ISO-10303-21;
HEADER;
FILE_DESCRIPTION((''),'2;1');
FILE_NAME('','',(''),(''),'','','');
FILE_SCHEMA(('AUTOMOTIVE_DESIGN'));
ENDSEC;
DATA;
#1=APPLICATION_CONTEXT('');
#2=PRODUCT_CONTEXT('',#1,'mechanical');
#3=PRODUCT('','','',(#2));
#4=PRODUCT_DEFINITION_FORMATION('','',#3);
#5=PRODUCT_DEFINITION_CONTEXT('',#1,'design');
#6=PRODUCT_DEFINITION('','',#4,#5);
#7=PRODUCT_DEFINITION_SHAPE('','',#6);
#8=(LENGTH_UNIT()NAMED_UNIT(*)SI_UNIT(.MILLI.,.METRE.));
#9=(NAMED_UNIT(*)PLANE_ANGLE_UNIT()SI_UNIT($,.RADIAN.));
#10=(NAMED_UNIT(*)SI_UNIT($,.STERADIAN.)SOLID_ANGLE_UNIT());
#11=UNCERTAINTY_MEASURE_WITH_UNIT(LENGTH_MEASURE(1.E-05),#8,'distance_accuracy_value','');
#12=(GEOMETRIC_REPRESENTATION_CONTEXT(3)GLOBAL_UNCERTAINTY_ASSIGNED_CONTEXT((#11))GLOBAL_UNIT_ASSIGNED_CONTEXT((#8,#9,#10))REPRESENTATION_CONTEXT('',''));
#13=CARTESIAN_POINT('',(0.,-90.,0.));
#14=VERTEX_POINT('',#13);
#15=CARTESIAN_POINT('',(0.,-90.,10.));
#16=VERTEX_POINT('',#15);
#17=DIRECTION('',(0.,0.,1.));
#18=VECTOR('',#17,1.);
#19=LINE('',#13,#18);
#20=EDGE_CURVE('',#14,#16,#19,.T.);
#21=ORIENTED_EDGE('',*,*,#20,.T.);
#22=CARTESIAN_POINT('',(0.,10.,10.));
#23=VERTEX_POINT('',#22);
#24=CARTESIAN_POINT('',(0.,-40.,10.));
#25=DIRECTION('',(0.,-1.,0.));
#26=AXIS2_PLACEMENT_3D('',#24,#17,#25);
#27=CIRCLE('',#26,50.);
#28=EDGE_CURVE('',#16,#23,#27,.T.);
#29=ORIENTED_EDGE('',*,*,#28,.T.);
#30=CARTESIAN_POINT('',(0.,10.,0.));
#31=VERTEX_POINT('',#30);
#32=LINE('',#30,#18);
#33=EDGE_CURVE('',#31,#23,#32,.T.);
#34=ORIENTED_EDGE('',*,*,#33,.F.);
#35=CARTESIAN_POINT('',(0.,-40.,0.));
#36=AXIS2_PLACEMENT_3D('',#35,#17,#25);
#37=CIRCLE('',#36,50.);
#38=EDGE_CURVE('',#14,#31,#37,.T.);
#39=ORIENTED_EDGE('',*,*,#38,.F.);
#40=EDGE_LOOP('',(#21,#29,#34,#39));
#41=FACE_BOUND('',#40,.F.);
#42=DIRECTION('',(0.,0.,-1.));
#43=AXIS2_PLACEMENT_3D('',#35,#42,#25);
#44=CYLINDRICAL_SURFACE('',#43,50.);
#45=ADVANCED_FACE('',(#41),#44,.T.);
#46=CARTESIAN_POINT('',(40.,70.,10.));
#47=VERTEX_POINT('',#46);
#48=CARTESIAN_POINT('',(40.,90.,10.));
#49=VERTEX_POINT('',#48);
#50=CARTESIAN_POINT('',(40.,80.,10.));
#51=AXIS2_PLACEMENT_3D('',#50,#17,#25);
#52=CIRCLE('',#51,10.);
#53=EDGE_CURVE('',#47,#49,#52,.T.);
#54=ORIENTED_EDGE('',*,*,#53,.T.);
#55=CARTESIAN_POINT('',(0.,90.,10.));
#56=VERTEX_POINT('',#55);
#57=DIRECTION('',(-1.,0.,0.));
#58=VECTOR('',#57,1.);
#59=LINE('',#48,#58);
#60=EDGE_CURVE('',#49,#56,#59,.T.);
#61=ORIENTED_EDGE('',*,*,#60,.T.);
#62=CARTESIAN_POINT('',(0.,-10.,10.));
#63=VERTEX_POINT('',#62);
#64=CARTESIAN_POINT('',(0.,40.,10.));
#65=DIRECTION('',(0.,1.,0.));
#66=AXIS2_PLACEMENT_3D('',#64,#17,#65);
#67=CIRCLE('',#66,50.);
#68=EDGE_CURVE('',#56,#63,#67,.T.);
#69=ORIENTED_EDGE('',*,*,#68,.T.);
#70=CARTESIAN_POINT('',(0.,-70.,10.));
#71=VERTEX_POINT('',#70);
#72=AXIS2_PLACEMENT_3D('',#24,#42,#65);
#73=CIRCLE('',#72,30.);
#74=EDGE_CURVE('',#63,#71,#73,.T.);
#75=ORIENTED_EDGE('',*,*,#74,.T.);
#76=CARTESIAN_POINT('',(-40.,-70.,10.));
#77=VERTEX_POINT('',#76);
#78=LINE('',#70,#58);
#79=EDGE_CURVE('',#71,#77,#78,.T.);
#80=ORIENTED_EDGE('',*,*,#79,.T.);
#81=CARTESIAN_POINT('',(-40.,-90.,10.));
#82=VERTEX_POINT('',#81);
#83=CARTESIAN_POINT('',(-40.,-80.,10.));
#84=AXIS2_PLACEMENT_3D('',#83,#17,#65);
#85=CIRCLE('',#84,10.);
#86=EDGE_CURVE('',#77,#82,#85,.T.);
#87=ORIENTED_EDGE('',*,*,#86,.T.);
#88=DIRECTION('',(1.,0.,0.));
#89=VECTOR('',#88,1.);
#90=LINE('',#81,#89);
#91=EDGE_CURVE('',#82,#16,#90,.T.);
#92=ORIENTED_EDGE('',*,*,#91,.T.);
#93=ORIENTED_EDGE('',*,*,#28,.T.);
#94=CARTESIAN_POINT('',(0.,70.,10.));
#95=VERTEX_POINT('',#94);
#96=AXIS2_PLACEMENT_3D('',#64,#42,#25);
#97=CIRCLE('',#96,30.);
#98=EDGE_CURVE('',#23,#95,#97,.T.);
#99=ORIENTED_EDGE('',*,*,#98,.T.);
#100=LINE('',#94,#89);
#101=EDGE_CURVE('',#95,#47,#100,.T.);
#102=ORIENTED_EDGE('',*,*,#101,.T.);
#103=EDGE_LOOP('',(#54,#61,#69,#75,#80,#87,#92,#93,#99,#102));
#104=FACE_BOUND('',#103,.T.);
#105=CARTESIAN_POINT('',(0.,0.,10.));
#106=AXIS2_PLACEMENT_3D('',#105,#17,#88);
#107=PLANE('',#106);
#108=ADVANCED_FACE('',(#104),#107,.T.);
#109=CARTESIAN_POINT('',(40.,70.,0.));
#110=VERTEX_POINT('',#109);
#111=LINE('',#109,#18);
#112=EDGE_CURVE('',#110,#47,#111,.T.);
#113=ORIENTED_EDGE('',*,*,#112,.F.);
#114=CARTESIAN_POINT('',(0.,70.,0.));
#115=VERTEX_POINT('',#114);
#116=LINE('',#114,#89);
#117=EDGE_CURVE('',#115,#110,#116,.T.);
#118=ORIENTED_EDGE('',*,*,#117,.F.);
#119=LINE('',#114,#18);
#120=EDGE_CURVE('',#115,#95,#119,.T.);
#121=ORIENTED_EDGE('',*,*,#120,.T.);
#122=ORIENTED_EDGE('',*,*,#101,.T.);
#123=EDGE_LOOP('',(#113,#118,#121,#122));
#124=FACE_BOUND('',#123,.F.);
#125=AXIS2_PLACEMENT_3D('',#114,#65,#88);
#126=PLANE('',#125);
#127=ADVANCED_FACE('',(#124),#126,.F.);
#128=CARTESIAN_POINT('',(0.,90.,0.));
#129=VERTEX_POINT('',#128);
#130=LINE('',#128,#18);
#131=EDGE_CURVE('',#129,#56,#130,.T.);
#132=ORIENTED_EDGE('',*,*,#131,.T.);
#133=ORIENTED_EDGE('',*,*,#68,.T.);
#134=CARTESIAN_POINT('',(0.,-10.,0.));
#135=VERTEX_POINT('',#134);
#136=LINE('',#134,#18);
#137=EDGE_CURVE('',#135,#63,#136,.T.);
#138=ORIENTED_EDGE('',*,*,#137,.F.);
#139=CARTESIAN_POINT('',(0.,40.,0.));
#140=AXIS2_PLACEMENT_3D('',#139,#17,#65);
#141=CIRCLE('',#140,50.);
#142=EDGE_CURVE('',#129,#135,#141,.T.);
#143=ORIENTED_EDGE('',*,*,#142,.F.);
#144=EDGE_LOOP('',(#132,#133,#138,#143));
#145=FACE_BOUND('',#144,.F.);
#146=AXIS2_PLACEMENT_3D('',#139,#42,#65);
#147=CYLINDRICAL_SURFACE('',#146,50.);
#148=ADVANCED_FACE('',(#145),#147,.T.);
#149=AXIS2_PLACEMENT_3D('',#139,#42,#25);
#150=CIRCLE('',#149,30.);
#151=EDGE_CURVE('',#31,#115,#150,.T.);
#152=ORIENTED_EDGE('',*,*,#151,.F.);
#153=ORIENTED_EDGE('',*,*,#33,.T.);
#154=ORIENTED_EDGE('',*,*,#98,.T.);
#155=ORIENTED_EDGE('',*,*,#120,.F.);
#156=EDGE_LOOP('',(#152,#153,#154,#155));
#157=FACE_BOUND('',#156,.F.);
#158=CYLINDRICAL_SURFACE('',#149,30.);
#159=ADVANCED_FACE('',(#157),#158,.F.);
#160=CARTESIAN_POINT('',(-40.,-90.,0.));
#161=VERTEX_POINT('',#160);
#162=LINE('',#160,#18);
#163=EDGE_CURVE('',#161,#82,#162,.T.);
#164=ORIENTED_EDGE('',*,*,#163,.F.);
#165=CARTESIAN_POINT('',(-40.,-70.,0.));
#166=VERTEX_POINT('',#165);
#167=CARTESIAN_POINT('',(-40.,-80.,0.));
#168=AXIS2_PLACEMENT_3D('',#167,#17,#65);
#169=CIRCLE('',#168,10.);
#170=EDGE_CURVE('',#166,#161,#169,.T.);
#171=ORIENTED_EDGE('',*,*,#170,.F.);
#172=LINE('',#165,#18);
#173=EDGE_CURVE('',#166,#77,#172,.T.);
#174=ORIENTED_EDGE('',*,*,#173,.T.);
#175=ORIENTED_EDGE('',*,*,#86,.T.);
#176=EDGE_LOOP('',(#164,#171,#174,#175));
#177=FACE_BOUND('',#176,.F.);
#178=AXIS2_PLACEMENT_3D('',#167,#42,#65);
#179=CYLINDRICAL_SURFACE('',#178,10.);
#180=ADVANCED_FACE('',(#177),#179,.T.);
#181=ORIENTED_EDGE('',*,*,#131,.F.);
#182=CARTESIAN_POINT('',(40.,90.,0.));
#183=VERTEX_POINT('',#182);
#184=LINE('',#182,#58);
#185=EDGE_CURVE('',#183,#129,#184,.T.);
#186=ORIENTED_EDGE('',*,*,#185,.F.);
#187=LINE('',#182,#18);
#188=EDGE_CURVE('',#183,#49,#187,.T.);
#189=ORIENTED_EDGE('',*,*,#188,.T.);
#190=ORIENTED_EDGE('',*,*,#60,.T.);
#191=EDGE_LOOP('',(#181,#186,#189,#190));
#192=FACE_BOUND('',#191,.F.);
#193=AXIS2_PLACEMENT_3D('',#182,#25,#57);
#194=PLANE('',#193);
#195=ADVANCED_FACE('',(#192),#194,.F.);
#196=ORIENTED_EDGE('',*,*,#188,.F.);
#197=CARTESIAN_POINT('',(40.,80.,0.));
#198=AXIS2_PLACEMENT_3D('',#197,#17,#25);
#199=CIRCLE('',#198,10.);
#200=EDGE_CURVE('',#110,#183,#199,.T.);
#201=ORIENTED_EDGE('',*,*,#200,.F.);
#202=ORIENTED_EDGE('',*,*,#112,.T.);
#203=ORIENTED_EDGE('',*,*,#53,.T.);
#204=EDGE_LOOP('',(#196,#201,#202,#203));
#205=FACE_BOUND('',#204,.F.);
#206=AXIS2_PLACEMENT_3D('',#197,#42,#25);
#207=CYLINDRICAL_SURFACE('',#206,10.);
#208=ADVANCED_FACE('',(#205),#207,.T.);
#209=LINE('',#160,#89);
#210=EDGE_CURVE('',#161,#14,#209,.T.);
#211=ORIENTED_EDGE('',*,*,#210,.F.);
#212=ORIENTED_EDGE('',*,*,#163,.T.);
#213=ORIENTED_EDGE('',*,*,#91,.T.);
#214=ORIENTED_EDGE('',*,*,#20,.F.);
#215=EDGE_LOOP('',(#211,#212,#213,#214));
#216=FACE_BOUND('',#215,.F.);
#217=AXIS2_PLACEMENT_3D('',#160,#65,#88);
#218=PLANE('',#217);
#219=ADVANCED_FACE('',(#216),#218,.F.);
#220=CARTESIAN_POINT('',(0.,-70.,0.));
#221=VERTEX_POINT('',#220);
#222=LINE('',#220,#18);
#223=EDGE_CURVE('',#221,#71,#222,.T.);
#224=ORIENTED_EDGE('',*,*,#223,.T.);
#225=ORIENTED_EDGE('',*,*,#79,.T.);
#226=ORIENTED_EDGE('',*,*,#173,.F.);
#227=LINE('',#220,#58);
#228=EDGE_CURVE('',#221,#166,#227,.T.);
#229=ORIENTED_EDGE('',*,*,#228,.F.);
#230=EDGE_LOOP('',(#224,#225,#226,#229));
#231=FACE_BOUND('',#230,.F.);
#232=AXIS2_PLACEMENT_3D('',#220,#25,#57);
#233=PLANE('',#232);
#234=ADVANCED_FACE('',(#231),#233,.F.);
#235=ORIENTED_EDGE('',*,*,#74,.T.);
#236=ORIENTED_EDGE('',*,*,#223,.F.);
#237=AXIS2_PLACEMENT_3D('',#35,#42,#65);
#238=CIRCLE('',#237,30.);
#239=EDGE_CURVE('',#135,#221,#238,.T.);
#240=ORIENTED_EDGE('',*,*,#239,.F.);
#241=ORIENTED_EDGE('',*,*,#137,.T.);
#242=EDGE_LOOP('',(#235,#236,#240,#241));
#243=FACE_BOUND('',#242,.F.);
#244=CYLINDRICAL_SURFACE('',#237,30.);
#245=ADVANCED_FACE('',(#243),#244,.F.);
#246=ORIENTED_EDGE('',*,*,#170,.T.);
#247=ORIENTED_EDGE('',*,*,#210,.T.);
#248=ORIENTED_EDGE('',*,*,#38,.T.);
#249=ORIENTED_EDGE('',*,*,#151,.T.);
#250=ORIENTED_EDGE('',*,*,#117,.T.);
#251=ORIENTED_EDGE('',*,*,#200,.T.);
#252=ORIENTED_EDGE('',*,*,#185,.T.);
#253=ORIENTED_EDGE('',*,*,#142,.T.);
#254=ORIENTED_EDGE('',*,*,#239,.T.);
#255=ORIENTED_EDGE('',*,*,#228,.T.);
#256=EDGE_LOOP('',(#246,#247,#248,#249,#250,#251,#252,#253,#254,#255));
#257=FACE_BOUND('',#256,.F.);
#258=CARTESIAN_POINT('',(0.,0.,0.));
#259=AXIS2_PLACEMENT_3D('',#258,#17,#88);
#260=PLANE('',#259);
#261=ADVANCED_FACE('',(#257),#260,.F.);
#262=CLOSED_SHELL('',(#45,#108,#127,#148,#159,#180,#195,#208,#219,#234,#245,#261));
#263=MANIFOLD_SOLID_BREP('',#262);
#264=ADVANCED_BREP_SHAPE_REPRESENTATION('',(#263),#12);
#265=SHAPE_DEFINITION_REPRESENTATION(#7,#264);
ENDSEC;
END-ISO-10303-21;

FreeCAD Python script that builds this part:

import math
import FreeCAD as App
import Part
import Sketcher
Q = App.Units.Quantity

doc = App.newDocument("Part")
body = doc.addObject("PartDesign::Body", "Body")

# Sketch on XY plane
sketch1 = body.newObject("Sketcher::SketchObject", "Sketch")
sketch1.AttachmentSupport = (doc.getObject("XY_Plane"), [""])
sketch1.MapMode = "FlatFace"
sketch1.addGeometry([
    Part.LineSegment(App.Vector(40, 90, 0), App.Vector(0, 90, 0)),  # 0
    Part.ArcOfCircle(Part.Circle(App.Vector(0, 40, 0), App.Vector(0, 0, 1), 50), math.radians(90), math.radians(270)),  # 1
    Part.ArcOfCircle(Part.Circle(App.Vector(0, -40, 0), App.Vector(0, 0, 1), 30), math.radians(-90), math.radians(90)),  # 2
    Part.LineSegment(App.Vector(0, -70, 0), App.Vector(-40, -70, 0)),  # 3
    Part.ArcOfCircle(Part.Circle(App.Vector(-40, -80, 0), App.Vector(0, 0, 1), 10), math.radians(90), math.radians(270)),  # 4
    Part.LineSegment(App.Vector(-40, -90, 0), App.Vector(0, -90, 0)),  # 5
    Part.ArcOfCircle(Part.Circle(App.Vector(0, -40, 0), App.Vector(0, 0, 1), 50), math.radians(-90), math.radians(90)),  # 6
    Part.ArcOfCircle(Part.Circle(App.Vector(0, 40, 0), App.Vector(0, 0, 1), 30), math.radians(90), math.radians(270)),  # 7
    Part.LineSegment(App.Vector(0, 70, 0), App.Vector(40, 70, 0)),  # 8
    Part.ArcOfCircle(Part.Circle(App.Vector(40, 80, 0), App.Vector(0, 0, 1), 10), math.radians(-90), math.radians(90)),  # 9
], False)
sketch1.addConstraint([
    Sketcher.Constraint("Tangent", 0, 2, 1, 1),
    Sketcher.Constraint("Tangent", 1, 2, 2, 2),
    Sketcher.Constraint("Tangent", 2, 1, 3, 1),
    Sketcher.Constraint("Tangent", 3, 2, 4, 1),
    Sketcher.Constraint("Tangent", 4, 2, 5, 1),
    Sketcher.Constraint("Tangent", 5, 2, 6, 1),
    Sketcher.Constraint("Tangent", 6, 2, 7, 2),
    Sketcher.Constraint("Tangent", 7, 1, 8, 1),
    Sketcher.Constraint("Tangent", 8, 2, 9, 1),
    Sketcher.Constraint("Tangent", 9, 2, 0, 1),
    Sketcher.Constraint("Horizontal", 0),
    Sketcher.Constraint("Horizontal", 3),
    Sketcher.Constraint("Horizontal", 5),
    Sketcher.Constraint("Horizontal", 8),
    Sketcher.Constraint("Coincident", 6, 3, 2, 3),
    Sketcher.Constraint("Coincident", 7, 3, 1, 3),
    Sketcher.Constraint("Equal", 1, 6),
    Sketcher.Constraint("Symmetric", 1, 3, 2, 3, -1, 1),
    Sketcher.Constraint("PointOnObject", 1, 3, -2),
    Sketcher.Constraint("Equal", 0, 3),
    Sketcher.Constraint("Radius", 1, Q("50 mm")),
    Sketcher.Constraint("Radius", 2, Q("30 mm")),
    Sketcher.Constraint("DistanceX", 0, 2, 0, 1, Q("40 mm")),
])
pad1 = body.newObject("PartDesign::Pad", "Pad")
pad1.Profile = sketch1
pad1.Length = 10

doc.recompute()
